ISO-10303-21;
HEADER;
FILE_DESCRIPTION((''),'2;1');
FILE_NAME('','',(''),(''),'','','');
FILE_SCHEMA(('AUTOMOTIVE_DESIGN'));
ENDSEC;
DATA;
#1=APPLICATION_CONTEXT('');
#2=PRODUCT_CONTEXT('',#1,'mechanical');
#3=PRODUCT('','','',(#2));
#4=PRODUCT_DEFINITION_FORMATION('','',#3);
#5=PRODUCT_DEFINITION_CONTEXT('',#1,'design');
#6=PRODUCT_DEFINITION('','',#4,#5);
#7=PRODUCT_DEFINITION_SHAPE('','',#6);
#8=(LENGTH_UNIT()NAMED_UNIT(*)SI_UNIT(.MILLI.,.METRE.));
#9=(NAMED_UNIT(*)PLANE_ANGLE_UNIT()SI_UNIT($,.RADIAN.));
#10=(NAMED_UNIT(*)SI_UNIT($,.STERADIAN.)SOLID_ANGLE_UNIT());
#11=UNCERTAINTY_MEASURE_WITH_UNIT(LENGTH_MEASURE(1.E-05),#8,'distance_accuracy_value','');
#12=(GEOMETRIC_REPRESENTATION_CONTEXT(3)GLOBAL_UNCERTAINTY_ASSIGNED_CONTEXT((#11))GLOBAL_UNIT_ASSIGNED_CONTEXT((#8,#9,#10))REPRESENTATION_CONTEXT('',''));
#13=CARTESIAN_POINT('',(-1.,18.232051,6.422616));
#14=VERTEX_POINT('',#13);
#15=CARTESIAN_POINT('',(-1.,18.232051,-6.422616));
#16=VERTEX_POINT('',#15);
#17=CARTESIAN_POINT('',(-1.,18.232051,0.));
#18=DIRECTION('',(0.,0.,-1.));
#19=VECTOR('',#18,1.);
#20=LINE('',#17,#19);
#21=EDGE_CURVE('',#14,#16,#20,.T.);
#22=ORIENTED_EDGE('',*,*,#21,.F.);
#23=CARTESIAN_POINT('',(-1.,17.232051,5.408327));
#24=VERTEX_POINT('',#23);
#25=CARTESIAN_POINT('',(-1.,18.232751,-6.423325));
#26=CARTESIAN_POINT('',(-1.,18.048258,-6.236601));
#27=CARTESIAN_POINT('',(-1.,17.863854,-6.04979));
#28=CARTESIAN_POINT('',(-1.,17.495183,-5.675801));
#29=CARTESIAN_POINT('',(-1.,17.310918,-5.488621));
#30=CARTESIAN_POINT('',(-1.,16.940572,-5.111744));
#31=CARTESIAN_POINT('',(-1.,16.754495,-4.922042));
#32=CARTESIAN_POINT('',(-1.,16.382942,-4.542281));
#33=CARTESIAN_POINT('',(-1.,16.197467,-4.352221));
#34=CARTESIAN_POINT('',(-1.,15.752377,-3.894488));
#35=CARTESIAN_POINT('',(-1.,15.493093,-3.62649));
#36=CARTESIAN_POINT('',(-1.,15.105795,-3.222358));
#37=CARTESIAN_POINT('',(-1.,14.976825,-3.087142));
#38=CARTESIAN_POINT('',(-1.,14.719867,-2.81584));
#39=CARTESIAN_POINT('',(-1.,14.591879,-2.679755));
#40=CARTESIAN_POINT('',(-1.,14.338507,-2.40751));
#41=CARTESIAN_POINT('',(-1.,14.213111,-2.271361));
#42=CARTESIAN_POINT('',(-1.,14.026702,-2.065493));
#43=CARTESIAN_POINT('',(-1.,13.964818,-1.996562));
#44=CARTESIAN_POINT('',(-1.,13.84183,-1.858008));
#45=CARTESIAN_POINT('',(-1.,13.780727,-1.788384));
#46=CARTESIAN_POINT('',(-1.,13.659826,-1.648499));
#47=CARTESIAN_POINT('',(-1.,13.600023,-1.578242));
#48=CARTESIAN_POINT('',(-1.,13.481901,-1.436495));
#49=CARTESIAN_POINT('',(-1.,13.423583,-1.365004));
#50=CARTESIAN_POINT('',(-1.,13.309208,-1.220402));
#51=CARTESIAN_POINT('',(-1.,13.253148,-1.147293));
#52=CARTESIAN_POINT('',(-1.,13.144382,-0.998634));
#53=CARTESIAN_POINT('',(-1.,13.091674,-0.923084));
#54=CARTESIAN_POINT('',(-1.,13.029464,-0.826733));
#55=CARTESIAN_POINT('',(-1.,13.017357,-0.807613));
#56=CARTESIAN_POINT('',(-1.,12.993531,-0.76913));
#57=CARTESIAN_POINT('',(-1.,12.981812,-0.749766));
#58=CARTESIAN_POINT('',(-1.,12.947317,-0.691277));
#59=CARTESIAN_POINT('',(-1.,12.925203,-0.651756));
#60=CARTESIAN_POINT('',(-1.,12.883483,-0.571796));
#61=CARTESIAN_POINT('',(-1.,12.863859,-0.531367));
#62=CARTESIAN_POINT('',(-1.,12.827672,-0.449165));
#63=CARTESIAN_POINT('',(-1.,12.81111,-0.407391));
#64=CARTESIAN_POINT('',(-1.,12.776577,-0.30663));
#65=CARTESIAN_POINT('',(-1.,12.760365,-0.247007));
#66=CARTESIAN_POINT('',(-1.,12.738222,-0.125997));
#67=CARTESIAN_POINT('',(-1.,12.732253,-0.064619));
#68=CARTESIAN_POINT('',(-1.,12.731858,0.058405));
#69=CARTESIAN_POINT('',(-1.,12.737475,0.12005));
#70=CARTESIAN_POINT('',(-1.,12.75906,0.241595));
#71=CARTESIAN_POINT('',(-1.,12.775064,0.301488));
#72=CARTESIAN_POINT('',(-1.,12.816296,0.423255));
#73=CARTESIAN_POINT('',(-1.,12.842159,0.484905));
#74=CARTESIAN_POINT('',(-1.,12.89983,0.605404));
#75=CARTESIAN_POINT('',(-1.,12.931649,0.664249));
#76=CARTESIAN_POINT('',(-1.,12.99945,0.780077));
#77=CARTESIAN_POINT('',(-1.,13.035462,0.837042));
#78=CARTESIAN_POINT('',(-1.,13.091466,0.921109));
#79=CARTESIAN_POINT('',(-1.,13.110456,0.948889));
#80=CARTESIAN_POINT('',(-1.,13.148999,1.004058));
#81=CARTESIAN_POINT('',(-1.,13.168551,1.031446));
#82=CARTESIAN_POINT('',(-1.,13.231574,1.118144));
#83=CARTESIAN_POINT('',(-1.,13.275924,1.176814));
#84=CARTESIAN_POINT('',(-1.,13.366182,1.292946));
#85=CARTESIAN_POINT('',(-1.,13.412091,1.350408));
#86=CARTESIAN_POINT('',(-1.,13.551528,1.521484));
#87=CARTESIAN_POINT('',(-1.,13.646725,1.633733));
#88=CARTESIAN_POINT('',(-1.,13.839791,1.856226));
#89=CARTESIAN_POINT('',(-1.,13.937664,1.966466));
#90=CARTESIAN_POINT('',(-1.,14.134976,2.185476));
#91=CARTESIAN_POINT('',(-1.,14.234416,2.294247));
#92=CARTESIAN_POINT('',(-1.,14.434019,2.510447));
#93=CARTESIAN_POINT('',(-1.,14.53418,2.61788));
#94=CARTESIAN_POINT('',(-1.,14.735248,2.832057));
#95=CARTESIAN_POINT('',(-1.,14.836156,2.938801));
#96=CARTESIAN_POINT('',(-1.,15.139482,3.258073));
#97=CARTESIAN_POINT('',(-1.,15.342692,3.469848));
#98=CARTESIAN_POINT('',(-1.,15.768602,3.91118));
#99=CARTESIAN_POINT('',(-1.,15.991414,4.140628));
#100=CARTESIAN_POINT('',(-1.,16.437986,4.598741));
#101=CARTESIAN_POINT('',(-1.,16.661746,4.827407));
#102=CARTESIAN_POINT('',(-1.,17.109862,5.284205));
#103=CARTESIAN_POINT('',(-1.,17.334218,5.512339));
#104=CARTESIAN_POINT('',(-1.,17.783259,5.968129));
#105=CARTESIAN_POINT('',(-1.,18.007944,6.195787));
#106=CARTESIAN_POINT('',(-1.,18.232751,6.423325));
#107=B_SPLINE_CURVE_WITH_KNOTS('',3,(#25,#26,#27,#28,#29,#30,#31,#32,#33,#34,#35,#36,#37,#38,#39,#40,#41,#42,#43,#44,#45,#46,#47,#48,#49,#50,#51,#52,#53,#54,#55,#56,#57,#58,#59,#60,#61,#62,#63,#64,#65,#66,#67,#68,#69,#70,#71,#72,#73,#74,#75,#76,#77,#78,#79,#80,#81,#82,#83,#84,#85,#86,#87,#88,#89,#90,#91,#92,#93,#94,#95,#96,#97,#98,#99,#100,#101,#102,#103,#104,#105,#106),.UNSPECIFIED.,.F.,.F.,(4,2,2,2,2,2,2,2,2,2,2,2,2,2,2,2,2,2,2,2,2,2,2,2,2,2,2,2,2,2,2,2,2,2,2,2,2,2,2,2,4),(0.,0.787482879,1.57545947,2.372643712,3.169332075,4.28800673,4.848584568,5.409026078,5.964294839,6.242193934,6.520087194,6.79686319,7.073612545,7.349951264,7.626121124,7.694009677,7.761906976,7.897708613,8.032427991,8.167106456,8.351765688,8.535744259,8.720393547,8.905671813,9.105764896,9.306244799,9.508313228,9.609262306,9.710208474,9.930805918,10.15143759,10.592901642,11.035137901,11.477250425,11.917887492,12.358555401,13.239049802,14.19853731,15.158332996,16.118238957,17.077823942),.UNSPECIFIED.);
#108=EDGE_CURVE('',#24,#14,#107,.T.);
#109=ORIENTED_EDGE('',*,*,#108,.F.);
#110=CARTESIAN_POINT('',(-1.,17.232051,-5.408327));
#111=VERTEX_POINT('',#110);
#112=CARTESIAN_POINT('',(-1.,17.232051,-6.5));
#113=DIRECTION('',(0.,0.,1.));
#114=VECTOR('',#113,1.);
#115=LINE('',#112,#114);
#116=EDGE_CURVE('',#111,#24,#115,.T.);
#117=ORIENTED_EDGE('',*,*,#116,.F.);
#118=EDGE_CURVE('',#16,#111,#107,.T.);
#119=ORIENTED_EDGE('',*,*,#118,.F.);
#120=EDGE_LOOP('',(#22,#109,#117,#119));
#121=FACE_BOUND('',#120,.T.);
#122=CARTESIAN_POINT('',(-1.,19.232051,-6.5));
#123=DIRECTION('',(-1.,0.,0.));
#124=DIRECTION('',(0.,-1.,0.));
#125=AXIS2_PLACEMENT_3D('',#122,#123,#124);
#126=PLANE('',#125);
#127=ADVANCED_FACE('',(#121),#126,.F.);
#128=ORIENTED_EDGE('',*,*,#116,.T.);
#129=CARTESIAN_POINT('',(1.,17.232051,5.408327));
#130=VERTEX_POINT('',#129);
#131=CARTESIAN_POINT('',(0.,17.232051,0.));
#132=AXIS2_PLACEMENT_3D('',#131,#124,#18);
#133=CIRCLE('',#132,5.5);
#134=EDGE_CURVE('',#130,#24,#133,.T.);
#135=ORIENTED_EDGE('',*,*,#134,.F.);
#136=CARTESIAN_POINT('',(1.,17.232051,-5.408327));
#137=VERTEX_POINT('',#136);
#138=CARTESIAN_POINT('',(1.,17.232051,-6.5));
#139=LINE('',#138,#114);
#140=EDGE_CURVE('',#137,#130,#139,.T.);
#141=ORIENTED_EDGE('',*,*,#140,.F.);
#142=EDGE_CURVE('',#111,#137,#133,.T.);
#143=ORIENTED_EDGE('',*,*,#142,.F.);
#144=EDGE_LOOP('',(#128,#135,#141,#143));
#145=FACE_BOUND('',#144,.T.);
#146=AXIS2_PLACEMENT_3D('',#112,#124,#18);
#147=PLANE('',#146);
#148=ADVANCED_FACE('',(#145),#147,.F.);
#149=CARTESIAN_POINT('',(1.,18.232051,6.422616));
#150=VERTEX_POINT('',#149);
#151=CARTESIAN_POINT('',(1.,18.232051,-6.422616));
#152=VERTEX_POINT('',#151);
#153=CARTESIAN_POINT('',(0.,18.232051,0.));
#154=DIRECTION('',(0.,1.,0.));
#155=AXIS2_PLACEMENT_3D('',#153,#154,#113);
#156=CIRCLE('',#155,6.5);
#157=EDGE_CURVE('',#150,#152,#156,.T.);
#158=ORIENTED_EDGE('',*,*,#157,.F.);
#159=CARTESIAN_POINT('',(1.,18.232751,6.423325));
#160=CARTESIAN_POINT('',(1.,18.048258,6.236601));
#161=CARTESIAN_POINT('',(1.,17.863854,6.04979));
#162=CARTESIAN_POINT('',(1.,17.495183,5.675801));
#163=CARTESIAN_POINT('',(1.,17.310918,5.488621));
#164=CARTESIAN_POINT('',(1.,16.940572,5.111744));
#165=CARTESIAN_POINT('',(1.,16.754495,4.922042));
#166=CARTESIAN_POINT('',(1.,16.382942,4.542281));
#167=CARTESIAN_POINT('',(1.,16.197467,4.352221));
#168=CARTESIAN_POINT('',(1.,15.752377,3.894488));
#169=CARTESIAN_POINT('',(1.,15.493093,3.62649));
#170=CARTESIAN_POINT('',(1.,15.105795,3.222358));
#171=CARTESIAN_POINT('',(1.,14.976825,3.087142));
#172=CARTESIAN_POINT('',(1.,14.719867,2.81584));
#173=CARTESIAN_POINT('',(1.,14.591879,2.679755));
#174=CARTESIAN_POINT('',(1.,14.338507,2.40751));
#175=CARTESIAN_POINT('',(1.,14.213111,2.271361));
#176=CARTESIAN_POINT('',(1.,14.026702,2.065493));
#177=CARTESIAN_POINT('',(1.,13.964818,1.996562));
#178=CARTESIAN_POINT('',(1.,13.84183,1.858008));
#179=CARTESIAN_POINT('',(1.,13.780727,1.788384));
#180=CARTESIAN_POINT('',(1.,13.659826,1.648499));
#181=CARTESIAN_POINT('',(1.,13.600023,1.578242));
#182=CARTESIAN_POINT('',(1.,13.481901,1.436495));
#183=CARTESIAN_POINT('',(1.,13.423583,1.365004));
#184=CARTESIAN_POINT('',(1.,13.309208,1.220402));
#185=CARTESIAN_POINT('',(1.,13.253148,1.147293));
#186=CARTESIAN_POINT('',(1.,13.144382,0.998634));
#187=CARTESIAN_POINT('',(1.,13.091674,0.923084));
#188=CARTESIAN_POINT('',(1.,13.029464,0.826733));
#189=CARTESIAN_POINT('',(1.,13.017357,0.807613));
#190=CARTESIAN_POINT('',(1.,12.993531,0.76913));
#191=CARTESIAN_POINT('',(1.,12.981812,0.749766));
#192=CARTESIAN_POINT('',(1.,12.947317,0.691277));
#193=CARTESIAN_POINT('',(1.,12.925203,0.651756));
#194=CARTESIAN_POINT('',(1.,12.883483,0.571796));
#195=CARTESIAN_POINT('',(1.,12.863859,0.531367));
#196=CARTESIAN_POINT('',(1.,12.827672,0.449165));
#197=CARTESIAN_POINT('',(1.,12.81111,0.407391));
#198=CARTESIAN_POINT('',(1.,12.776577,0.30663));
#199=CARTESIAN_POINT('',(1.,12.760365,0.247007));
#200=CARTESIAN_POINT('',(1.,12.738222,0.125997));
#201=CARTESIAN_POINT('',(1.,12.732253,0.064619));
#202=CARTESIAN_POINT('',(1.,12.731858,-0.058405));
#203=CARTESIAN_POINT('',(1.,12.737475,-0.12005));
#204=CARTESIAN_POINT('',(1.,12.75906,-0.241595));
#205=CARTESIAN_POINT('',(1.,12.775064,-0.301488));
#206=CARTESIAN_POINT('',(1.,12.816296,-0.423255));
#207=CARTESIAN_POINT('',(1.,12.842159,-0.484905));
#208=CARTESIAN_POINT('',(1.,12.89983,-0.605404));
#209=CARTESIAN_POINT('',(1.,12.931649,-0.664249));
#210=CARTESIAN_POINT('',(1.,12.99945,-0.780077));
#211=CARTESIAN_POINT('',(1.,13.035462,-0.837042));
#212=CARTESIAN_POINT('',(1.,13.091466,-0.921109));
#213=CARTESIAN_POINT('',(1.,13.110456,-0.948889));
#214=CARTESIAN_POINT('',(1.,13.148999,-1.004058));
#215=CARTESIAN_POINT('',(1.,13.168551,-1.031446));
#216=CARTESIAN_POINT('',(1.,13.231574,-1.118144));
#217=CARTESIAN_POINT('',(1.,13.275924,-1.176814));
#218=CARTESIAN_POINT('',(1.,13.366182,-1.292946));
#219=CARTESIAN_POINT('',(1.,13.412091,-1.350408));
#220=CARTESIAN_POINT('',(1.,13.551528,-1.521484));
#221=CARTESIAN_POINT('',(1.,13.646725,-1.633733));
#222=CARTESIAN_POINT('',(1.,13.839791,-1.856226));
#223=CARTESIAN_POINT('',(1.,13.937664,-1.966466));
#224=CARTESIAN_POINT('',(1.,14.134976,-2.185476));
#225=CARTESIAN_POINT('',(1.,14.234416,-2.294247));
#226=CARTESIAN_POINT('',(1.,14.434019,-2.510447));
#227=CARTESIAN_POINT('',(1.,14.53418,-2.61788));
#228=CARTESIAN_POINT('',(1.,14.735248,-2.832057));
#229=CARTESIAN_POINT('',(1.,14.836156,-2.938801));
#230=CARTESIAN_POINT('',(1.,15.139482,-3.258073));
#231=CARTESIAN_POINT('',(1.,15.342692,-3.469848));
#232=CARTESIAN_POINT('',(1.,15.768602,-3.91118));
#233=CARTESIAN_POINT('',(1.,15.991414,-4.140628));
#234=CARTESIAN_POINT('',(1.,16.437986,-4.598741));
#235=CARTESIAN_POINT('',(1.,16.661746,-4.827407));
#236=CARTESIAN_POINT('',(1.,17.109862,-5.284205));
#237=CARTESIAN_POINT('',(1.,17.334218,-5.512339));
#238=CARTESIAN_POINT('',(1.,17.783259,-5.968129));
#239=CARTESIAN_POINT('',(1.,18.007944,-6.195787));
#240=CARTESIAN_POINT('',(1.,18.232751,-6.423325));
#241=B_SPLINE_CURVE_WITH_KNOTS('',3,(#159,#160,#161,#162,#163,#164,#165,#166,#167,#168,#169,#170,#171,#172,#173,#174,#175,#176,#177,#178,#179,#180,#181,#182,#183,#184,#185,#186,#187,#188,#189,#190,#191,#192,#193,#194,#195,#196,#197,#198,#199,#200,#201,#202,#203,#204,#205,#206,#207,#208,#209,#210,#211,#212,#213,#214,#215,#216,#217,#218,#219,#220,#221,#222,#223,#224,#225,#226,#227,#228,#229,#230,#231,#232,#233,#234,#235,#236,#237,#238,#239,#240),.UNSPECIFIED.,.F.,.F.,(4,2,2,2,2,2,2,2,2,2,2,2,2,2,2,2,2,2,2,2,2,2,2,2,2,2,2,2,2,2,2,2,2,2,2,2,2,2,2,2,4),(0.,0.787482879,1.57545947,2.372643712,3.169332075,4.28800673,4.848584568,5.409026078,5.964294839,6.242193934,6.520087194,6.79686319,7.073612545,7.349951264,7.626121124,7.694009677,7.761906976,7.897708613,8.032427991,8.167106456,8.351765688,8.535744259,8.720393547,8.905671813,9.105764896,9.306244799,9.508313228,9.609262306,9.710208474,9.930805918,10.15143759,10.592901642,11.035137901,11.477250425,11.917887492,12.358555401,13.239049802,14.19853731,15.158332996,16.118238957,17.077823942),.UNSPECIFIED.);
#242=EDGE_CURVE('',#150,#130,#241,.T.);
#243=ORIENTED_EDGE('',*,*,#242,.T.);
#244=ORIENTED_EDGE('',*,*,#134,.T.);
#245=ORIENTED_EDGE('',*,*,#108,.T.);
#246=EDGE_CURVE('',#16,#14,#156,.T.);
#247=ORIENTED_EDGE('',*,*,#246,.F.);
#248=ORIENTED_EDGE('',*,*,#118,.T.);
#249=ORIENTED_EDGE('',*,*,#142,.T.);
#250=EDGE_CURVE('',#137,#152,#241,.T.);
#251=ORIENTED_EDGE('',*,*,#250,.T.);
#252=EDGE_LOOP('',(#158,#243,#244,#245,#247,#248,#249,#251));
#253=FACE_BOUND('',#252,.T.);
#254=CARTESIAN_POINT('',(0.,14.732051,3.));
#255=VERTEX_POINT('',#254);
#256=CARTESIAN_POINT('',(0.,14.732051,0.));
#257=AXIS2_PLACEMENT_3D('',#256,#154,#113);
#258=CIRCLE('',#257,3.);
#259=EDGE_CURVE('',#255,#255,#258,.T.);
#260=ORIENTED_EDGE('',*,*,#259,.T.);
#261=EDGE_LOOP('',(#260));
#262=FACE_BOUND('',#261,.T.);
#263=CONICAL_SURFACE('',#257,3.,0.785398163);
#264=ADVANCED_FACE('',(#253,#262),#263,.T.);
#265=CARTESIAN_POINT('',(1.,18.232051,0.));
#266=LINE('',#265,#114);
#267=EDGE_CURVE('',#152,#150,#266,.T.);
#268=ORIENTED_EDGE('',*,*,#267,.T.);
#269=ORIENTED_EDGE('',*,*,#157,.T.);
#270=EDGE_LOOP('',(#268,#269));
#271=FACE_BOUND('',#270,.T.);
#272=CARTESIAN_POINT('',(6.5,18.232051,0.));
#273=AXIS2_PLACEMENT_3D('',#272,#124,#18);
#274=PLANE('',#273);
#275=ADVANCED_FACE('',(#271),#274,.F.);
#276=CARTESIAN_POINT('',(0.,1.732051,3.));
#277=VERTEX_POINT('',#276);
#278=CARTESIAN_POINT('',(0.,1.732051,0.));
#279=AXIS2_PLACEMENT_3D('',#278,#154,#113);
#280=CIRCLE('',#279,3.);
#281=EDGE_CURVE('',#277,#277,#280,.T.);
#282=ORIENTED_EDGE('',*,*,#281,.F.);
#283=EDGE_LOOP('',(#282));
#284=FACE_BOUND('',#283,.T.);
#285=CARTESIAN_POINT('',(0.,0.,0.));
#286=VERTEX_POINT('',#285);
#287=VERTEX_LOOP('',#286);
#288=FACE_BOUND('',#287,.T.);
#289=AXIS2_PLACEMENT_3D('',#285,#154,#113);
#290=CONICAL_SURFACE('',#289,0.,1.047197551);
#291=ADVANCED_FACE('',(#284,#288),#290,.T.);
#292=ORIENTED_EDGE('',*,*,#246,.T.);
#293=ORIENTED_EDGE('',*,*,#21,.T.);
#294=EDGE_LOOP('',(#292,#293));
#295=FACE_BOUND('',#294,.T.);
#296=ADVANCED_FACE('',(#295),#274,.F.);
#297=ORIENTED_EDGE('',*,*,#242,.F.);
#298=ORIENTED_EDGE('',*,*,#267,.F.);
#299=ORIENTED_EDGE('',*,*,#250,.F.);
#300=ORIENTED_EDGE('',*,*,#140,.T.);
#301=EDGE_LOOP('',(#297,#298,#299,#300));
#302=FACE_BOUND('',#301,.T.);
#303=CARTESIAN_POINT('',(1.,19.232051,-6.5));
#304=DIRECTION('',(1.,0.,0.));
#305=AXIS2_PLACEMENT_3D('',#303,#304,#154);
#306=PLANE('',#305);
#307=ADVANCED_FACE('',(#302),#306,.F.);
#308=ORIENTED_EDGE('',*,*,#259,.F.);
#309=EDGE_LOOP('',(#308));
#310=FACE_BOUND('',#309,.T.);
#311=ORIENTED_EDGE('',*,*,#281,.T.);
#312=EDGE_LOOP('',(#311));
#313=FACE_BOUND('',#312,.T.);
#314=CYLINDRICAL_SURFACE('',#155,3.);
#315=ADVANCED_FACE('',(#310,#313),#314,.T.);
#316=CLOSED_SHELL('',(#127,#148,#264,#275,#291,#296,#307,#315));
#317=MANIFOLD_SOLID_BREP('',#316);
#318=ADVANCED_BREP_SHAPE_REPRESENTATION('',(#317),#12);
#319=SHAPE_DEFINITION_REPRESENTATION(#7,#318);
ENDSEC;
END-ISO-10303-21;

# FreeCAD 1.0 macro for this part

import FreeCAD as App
import Part
import Sketcher
Q = App.Units.Quantity

doc = App.newDocument("Part")
body = doc.addObject("PartDesign::Body", "Body")

# Sketch on XY plane
sketch1 = body.newObject("Sketcher::SketchObject", "Sketch")
sketch1.AttachmentSupport = (doc.getObject("XY_Plane"), [""])
sketch1.MapMode = "FlatFace"
sketch1.addGeometry(Part.LineSegment(App.Vector(0, 0, 0), App.Vector(3, 1.7, 0)), False)
sketch1.addGeometry(Part.LineSegment(App.Vector(3, 1.7, 0), App.Vector(3, 14.7, 0)), False)
sketch1.addGeometry(Part.LineSegment(App.Vector(3, 14.7, 0), App.Vector(6.5, 18.2, 0)), False)
sketch1.addGeometry(Part.LineSegment(App.Vector(6.5, 18.2, 0), App.Vector(0, 18.2, 0)), False)
sketch1.addGeometry(Part.LineSegment(App.Vector(0, 18.2, 0), App.Vector(0, 0, 0)), False)
sketch1.addConstraint(Sketcher.Constraint("Coincident", 0, 2, 1, 1))
sketch1.addConstraint(Sketcher.Constraint("Coincident", 1, 2, 2, 1))
sketch1.addConstraint(Sketcher.Constraint("Coincident", 2, 2, 3, 1))
sketch1.addConstraint(Sketcher.Constraint("Coincident", 3, 2, 4, 1))
sketch1.addConstraint(Sketcher.Constraint("Coincident", 4, 2, 0, 1))
sketch1.addConstraint(Sketcher.Constraint("Vertical", 1))
sketch1.addConstraint(Sketcher.Constraint("Horizontal", 3))
sketch1.addConstraint(Sketcher.Constraint("Vertical", 4))
sketch1.addConstraint(Sketcher.Constraint("Coincident", 4, 2, -1, 1))
sketch1.addConstraint(Sketcher.Constraint("DistanceY", 1, 1, 1, 2, 13.0))
sketch1.addConstraint(Sketcher.Constraint("Angle", 0, Q("30 deg")))
sketch1.addConstraint(Sketcher.Constraint("Angle", 2, Q("45 deg")))
sketch1.addConstraint(Sketcher.Constraint("DistanceX", 3, 2, 3, 1, 6.5))
sketch1.addConstraint(Sketcher.Constraint("DistanceX", -1, 1, 0, 2, 3.0))
revolution = body.newObject("PartDesign::Revolution", "Revolution")
revolution.Profile = sketch1
revolution.ReferenceAxis = (sketch1, ["V_Axis"])
revolution.Angle = 360

# Sketch on XY plane
sketch2 = body.newObject("Sketcher::SketchObject", "Sketch001")
sketch2.AttachmentSupport = (doc.getObject("XY_Plane"), [""])
sketch2.MapMode = "FlatFace"
sketch2.addGeometry(Part.LineSegment(App.Vector(-1, 19.2, 0), App.Vector(-1, 17.2, 0)), False)
sketch2.addGeometry(Part.LineSegment(App.Vector(-1, 17.2, 0), App.Vector(1, 17.2, 0)), False)
sketch2.addGeometry(Part.LineSegment(App.Vector(1, 17.2, 0), App.Vector(1, 19.2, 0)), False)
sketch2.addGeometry(Part.LineSegment(App.Vector(1, 19.2, 0), App.Vector(-1, 19.2, 0)), False)
sketch2.addConstraint(Sketcher.Constraint("Coincident", 0, 2, 1, 1))
sketch2.addConstraint(Sketcher.Constraint("Coincident", 1, 2, 2, 1))
sketch2.addConstraint(Sketcher.Constraint("Coincident", 2, 2, 3, 1))
sketch2.addConstraint(Sketcher.Constraint("Coincident", 3, 2, 0, 1))
sketch2.addConstraint(Sketcher.Constraint("Vertical", 0))
sketch2.addConstraint(Sketcher.Constraint("Horizontal", 1))
sketch2.addConstraint(Sketcher.Constraint("Vertical", 2))
sketch2.addConstraint(Sketcher.Constraint("Horizontal", 3))
sketch2.addConstraint(Sketcher.Constraint("Equal", 3, 0))
sketch2.addConstraint(Sketcher.Constraint("DistanceX", 1, 1, 1, 2, 2.0))
sketch2.addConstraint(Sketcher.Constraint("DistanceX", 0, 2, -1, 1, 1.0))
sketch2.addConstraint(Sketcher.Constraint("DistanceY", -1, 1, 0, 2, 17.232051))
pocket1 = body.newObject("PartDesign::Pocket", "Pocket")
pocket1.Profile = sketch2
pocket1.Type = "ThroughAll"
pocket1.Midplane = True

doc.recompute()
